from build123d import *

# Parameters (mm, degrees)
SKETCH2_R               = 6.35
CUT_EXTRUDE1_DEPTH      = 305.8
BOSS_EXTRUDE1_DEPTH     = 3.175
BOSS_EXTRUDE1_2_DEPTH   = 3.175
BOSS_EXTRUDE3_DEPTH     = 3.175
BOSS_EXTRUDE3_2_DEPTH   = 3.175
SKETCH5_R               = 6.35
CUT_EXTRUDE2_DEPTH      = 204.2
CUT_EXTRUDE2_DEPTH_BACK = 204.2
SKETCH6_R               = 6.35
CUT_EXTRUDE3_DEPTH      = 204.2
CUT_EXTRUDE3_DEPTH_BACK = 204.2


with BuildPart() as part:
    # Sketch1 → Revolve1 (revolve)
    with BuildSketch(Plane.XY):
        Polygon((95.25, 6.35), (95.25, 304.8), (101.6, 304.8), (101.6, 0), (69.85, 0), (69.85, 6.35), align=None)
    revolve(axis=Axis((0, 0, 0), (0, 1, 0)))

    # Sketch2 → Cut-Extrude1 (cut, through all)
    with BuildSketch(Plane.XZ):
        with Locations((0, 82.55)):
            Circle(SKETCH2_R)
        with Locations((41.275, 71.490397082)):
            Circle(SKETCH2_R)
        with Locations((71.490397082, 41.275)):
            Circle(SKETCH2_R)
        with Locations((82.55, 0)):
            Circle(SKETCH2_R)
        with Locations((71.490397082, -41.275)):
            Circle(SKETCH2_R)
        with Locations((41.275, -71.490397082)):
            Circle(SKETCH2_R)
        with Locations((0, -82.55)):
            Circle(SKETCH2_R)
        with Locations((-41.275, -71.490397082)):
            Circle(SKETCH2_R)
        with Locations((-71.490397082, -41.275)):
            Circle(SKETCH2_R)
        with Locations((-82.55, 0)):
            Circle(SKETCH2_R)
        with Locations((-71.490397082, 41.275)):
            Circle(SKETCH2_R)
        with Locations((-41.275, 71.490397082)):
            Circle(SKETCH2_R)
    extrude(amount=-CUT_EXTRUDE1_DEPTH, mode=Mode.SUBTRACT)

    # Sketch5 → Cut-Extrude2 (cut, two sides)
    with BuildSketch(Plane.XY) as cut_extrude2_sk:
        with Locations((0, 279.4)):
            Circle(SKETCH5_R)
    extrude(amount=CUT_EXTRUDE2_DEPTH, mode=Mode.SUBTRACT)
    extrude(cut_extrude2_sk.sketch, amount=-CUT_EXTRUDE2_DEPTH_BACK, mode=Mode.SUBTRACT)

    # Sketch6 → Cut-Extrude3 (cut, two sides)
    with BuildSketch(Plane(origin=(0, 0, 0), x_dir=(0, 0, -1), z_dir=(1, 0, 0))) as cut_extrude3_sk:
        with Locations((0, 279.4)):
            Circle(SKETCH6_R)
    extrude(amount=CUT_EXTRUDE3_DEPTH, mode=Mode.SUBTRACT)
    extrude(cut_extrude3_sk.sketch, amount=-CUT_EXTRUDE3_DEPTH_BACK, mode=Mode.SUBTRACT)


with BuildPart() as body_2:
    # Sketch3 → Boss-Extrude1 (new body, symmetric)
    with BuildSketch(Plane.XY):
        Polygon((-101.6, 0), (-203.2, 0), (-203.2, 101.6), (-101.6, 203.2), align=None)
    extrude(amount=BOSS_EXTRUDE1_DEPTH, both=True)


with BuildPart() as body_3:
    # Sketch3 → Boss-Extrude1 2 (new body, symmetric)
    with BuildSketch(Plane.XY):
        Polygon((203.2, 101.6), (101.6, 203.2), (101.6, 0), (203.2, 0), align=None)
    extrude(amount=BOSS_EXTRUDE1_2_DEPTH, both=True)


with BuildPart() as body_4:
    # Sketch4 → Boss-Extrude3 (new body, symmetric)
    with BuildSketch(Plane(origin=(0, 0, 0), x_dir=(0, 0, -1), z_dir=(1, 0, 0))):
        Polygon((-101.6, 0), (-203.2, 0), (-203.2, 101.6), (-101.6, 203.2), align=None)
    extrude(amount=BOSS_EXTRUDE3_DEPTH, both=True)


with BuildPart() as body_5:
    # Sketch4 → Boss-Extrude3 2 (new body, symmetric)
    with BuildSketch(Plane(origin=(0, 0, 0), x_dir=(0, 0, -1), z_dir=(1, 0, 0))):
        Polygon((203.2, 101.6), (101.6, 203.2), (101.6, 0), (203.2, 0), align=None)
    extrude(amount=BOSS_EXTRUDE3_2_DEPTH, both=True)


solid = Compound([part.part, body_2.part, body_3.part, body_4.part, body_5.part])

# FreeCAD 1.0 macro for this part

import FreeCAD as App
import Part
import Sketcher
from FreeCAD import Vector
Q = App.Units.Quantity


def add_polygon(sketch, points):
    """Adds a closed chain of lines whose ends are joined by coincident constraints."""
    first, n = sketch.GeometryCount, len(points)
    for a, b in zip(points, points[1:] + points[:1]):
        sketch.addGeometry(Part.LineSegment(App.Vector(*a, 0), App.Vector(*b, 0)), False)
    for i in range(n):
        sketch.addConstraint(Sketcher.Constraint("Coincident", first + i, 2, first + (i + 1) % n, 1))

doc = App.newDocument("Part")
body = doc.addObject("PartDesign::Body", "Body")

# Sketch on XY plane
sketch1 = doc.addObject("Sketcher::SketchObject", "Sketch")
body.addObject(sketch1)
sketch1.AttachmentSupport = (doc.XY_Plane, [""])
sketch1.MapMode = "FlatFace"
add_polygon(sketch1, [(95, 305), (95, 6), (70, 6), (70, 0), (102, 0), (102, 305)])  # lines 0-5
sketch1.addConstraint(Sketcher.Constraint("Vertical", 0))
sketch1.addConstraint(Sketcher.Constraint("Horizontal", 1))
sketch1.addConstraint(Sketcher.Constraint("Vertical", 2))
sketch1.addConstraint(Sketcher.Constraint("Horizontal", 3))
sketch1.addConstraint(Sketcher.Constraint("Vertical", 4))
sketch1.addConstraint(Sketcher.Constraint("Horizontal", 5))
sketch1.addConstraint(Sketcher.Constraint("PointOnObject", 2, 2, -1))
sketch1.addConstraint(Sketcher.Constraint("Equal", 5, 2))
sketch1.addConstraint(Sketcher.Constraint("DistanceX", 1, 2, 1, 1, Q("1 in")))
sketch1.addConstraint(Sketcher.Constraint("DistanceY", 4, 1, 4, 2, Q("12 in")))
sketch1.addConstraint(Sketcher.Constraint("DistanceX", -1, 1, 3, 2, Q("4 in")))
sketch1.addConstraint(Sketcher.Constraint("DistanceX", 3, 1, 3, 2, Q("1.25 in")))
revolution = doc.addObject("PartDesign::Revolution", "Revolution")
body.addObject(revolution)
revolution.Profile = sketch1
revolution.ReferenceAxis = (sketch1, ["V_Axis"])
revolution.Angle = 360

# Sketch on XZ plane
sketch2 = doc.addObject("Sketcher::SketchObject", "Sketch001")
body.addObject(sketch2)
sketch2.AttachmentSupport = (doc.XZ_Plane, [""])
sketch2.MapMode = "FlatFace"
sketch2.addGeometry(Part.Circle(Vector(0, 83, 0), Vector(0, 0, 1), 6), False)
sketch2.addGeometry(Part.Circle(Vector(41, 71, 0), Vector(0, 0, 1), 6), False)
sketch2.addGeometry(Part.Circle(Vector(71, 41, 0), Vector(0, 0, 1), 6), False)
sketch2.addGeometry(Part.Circle(Vector(83, 0, 0), Vector(0, 0, 1), 6), False)
sketch2.addGeometry(Part.Circle(Vector(71, -41, 0), Vector(0, 0, 1), 6), False)
sketch2.addGeometry(Part.Circle(Vector(41, -71, 0), Vector(0, 0, 1), 6), False)
sketch2.addGeometry(Part.Circle(Vector(0, -83, 0), Vector(0, 0, 1), 6), False)
sketch2.addGeometry(Part.Circle(Vector(-41, -71, 0), Vector(0, 0, 1), 6), False)
sketch2.addGeometry(Part.Circle(Vector(-71, -41, 0), Vector(0, 0, 1), 6), False)
sketch2.addGeometry(Part.Circle(Vector(-83, 0, 0), Vector(0, 0, 1), 6), False)
sketch2.addGeometry(Part.Circle(Vector(-71, 41, 0), Vector(0, 0, 1), 6), False)
sketch2.addGeometry(Part.Circle(Vector(-41, 71, 0), Vector(0, 0, 1), 6), False)
sketch2.addConstraint(Sketcher.Constraint("Equal", 0, 1))
sketch2.addConstraint(Sketcher.Constraint("Equal", 1, 2))
sketch2.addConstraint(Sketcher.Constraint("Equal", 2, 3))
sketch2.addConstraint(Sketcher.Constraint("Equal", 3, 4))
sketch2.addConstraint(Sketcher.Constraint("Equal", 4, 5))
sketch2.addConstraint(Sketcher.Constraint("Equal", 5, 6))
sketch2.addConstraint(Sketcher.Constraint("Equal", 6, 7))
sketch2.addConstraint(Sketcher.Constraint("Equal", 7, 8))
sketch2.addConstraint(Sketcher.Constraint("Equal", 8, 9))
sketch2.addConstraint(Sketcher.Constraint("Equal", 9, 10))
sketch2.addConstraint(Sketcher.Constraint("Equal", 10, 11))
sketch2.addConstraint(Sketcher.Constraint("Symmetric", 0, 3, 6, 3, -1, 1))
sketch2.addConstraint(Sketcher.Constraint("Symmetric", 1, 3, 7, 3, -1, 1))
sketch2.addConstraint(Sketcher.Constraint("Symmetric", 2, 3, 8, 3, -1, 1))
sketch2.addConstraint(Sketcher.Constraint("Symmetric", 3, 3, 9, 3, -1, 1))
sketch2.addConstraint(Sketcher.Constraint("Symmetric", 4, 3, 10, 3, -1, 1))
sketch2.addConstraint(Sketcher.Constraint("Symmetric", 5, 3, 11, 3, -1, 1))
sketch2.addConstraint(Sketcher.Constraint("Symmetric", 5, 3, 7, 3, -2))
sketch2.addConstraint(Sketcher.Constraint("Symmetric", 4, 3, 8, 3, -2))
sketch2.addConstraint(Sketcher.Constraint("PointOnObject", 0, 3, -2))
sketch2.addConstraint(Sketcher.Constraint("PointOnObject", 3, 3, -1))
sketch2.addConstraint(Sketcher.Constraint("Diameter", 0, Q("0.5 in")))
sketch2.addConstraint(Sketcher.Constraint("DistanceY", -1, 1, 0, 3, Q("3.25 in")))
sketch2.addConstraint(Sketcher.Constraint("DistanceX", -1, 1, 3, 3, Q("3.25 in")))
sketch2.addConstraint(Sketcher.Constraint("DistanceY", 4, 3, 2, 3, Q("3.25 in")))
sketch2.addConstraint(Sketcher.Constraint("DistanceX", 7, 3, 5, 3, Q("3.25 in")))
sketch2.addConstraint(Sketcher.Constraint("DistanceY", -1, 1, 1, 3, 71.490397))
sketch2.addConstraint(Sketcher.Constraint("DistanceX", -1, 1, 2, 3, 71.490397))
pocket1 = doc.addObject("PartDesign::Pocket", "Pocket")
body.addObject(pocket1)
pocket1.Profile = sketch2
pocket1.Type = "ThroughAll"

# Sketch on XY plane
sketch3 = doc.addObject("Sketcher::SketchObject", "Sketch002")
body.addObject(sketch3)
sketch3.AttachmentSupport = (doc.XY_Plane, [""])
sketch3.MapMode = "FlatFace"
sketch3.addGeometry(Part.Circle(Vector(0, 279, 0), Vector(0, 0, 1), 6), False)
sketch3.addConstraint(Sketcher.Constraint("PointOnObject", 0, 3, -2))
sketch3.addConstraint(Sketcher.Constraint("Diameter", 0, Q("0.5 in")))
sketch3.addConstraint(Sketcher.Constraint("DistanceY", -1, 1, 0, 3, Q("11 in")))
pocket2 = doc.addObject("PartDesign::Pocket", "Pocket001")
body.addObject(pocket2)
pocket2.Profile = sketch3
pocket2.Type = "ThroughAll"
pocket2.Midplane = True

# Sketch on YZ plane
sketch4 = doc.addObject("Sketcher::SketchObject", "Sketch003")
body.addObject(sketch4)
sketch4.AttachmentSupport = (doc.YZ_Plane, [""])
sketch4.MapMode = "FlatFace"
sketch4.addGeometry(Part.Circle(Vector(279, 0, 0), Vector(0, 0, 1), 6), False)
sketch4.addConstraint(Sketcher.Constraint("PointOnObject", 0, 3, -1))
sketch4.addConstraint(Sketcher.Constraint("Diameter", 0, Q("0.5 in")))
sketch4.addConstraint(Sketcher.Constraint("DistanceX", -1, 1, 0, 3, Q("11 in")))
pocket3 = doc.addObject("PartDesign::Pocket", "Pocket002")
body.addObject(pocket3)
pocket3.Profile = sketch4
pocket3.Type = "ThroughAll"
pocket3.Midplane = True
body2 = doc.addObject("PartDesign::Body", "Body001")

# Sketch on XY plane
sketch5 = doc.addObject("Sketcher::SketchObject", "Sketch004")
body2.addObject(sketch5)
sketch5.AttachmentSupport = (doc.getObject("XY_Plane001"), [""])
sketch5.MapMode = "FlatFace"
add_polygon(sketch5, [(-203, 0), (-102, 0), (-102, 203), (-203, 102)])  # lines 0-3
sketch5.addConstraint(Sketcher.Constraint("Horizontal", 0))
sketch5.addConstraint(Sketcher.Constraint("Vertical", 1))
sketch5.addConstraint(Sketcher.Constraint("Vertical", 3))
sketch5.addConstraint(Sketcher.Constraint("PointOnObject", 0, 2, -1))
sketch5.addConstraint(Sketcher.Constraint("Equal", 0, 3))
sketch5.addConstraint(Sketcher.Constraint("DistanceX", 0, 1, 0, 2, Q("4 in")))
sketch5.addConstraint(Sketcher.Constraint("DistanceY", 1, 1, 1, 2, Q("8 in")))
sketch5.addConstraint(Sketcher.Constraint("DistanceX", 0, 2, -1, 1, Q("4 in")))
pad1 = doc.addObject("PartDesign::Pad", "Pad")
body2.addObject(pad1)
pad1.Profile = sketch5
pad1.Length = Q("0.25 in")
pad1.Midplane = True
body3 = doc.addObject("PartDesign::Body", "Body002")

# Sketch on XY plane
sketch6 = doc.addObject("Sketcher::SketchObject", "Sketch005")
body3.addObject(sketch6)
sketch6.AttachmentSupport = (doc.getObject("XY_Plane002"), [""])
sketch6.MapMode = "FlatFace"
add_polygon(sketch6, [(203, 102), (102, 203), (102, 0), (203, 0)])  # lines 0-3
sketch6.addConstraint(Sketcher.Constraint("Vertical", 1))
sketch6.addConstraint(Sketcher.Constraint("Horizontal", 2))
sketch6.addConstraint(Sketcher.Constraint("Vertical", 3))
sketch6.addConstraint(Sketcher.Constraint("PointOnObject", 1, 2, -1))
sketch6.addConstraint(Sketcher.Constraint("Equal", 2, 3))
sketch6.addConstraint(Sketcher.Constraint("DistanceX", 2, 1, 2, 2, Q("4 in")))
sketch6.addConstraint(Sketcher.Constraint("DistanceY", 1, 2, 1, 1, Q("8 in")))
sketch6.addConstraint(Sketcher.Constraint("DistanceX", -1, 1, 0, 2, Q("4 in")))
pad2 = doc.addObject("PartDesign::Pad", "Pad001")
body3.addObject(pad2)
pad2.Profile = sketch6
pad2.Length = Q("0.25 in")
pad2.Midplane = True
body4 = doc.addObject("PartDesign::Body", "Body003")

# Sketch on YZ plane
sketch7 = doc.addObject("Sketcher::SketchObject", "Sketch006")
body4.addObject(sketch7)
sketch7.AttachmentSupport = (doc.getObject("YZ_Plane003"), [""])
sketch7.MapMode = "FlatFace"
add_polygon(sketch7, [(0, 203), (0, 102), (203, 102), (102, 203)])  # lines 0-3
sketch7.addConstraint(Sketcher.Constraint("Vertical", 0))
sketch7.addConstraint(Sketcher.Constraint("Horizontal", 1))
sketch7.addConstraint(Sketcher.Constraint("Horizontal", 3))
sketch7.addConstraint(Sketcher.Constraint("PointOnObject", 0, 2, -2))
sketch7.addConstraint(Sketcher.Constraint("Equal", 3, 0))
sketch7.addConstraint(Sketcher.Constraint("DistanceX", 1, 1, 1, 2, Q("8 in")))
sketch7.addConstraint(Sketcher.Constraint("DistanceX", 3, 2, 3, 1, Q("4 in")))
sketch7.addConstraint(Sketcher.Constraint("DistanceY", -1, 1, 0, 2, Q("4 in")))
pad3 = doc.addObject("PartDesign::Pad", "Pad002")
body4.addObject(pad3)
pad3.Profile = sketch7
pad3.Length = Q("0.25 in")
pad3.Midplane = True
body5 = doc.addObject("PartDesign::Body", "Body004")

# Sketch on YZ plane
sketch8 = doc.addObject("Sketcher::SketchObject", "Sketch007")
body5.addObject(sketch8)
sketch8.AttachmentSupport = (doc.getObject("YZ_Plane004"), [""])
sketch8.MapMode = "FlatFace"
add_polygon(sketch8, [(102, -203), (203, -102), (0, -102), (0, -203)])  # lines 0-3
sketch8.addConstraint(Sketcher.Constraint("Horizontal", 1))
sketch8.addConstraint(Sketcher.Constraint("Vertical", 2))
sketch8.addConstraint(Sketcher.Constraint("Horizontal", 3))
sketch8.addConstraint(Sketcher.Constraint("PointOnObject", 1, 2, -2))
sketch8.addConstraint(Sketcher.Constraint("Equal", 3, 2))
sketch8.addConstraint(Sketcher.Constraint("DistanceX", 1, 2, 1, 1, Q("8 in")))
sketch8.addConstraint(Sketcher.Constraint("DistanceX", 3, 1, 3, 2, Q("4 in")))
sketch8.addConstraint(Sketcher.Constraint("DistanceY", 0, 2, -1, 1, Q("4 in")))
pad4 = doc.addObject("PartDesign::Pad", "Pad003")
body5.addObject(pad4)
pad4.Profile = sketch8
pad4.Length = Q("0.25 in")
pad4.Midplane = True

doc.recompute()
